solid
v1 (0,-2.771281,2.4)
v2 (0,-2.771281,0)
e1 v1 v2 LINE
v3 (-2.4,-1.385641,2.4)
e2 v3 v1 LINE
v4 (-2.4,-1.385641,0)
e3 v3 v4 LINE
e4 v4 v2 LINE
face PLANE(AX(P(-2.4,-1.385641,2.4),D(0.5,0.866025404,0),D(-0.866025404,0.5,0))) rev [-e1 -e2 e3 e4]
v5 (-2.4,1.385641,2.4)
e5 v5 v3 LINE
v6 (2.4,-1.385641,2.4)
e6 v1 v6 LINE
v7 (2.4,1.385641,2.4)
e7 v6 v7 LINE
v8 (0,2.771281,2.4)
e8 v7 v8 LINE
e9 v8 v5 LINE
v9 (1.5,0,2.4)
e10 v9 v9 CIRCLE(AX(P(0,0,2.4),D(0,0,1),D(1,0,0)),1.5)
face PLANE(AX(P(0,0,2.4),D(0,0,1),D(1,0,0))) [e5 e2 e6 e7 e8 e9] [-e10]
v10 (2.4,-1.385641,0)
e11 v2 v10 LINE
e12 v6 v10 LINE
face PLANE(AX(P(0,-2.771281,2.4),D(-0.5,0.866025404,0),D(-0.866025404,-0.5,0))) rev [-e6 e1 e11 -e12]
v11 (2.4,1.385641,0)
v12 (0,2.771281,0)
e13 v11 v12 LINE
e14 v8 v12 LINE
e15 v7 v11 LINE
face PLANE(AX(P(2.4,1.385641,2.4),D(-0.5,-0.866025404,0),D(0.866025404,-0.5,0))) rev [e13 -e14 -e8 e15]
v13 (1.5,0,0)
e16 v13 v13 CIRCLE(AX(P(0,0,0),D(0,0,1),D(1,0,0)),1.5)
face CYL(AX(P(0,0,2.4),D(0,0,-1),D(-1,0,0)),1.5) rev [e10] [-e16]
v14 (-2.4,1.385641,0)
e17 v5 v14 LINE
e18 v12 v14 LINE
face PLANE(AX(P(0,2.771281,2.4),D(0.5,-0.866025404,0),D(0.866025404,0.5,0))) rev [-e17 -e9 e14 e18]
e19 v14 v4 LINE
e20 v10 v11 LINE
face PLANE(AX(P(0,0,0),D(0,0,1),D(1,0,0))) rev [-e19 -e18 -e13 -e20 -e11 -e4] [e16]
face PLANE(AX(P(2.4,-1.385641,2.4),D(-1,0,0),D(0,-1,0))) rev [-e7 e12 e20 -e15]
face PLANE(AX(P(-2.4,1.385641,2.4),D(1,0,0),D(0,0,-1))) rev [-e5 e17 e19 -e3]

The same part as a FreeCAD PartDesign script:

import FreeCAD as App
import Part
import Sketcher
from FreeCAD import Vector
Q = App.Units.Quantity


def add_polygon(sketch, points):
    """Adds a closed chain of lines whose ends are joined by coincident constraints."""
    first, n = sketch.GeometryCount, len(points)
    for a, b in zip(points, points[1:] + points[:1]):
        sketch.addGeometry(Part.LineSegment(App.Vector(*a, 0), App.Vector(*b, 0)), False)
    for i in range(n):
        sketch.addConstraint(Sketcher.Constraint("Coincident", first + i, 2, first + (i + 1) % n, 1))

doc = App.newDocument("Part")
body = doc.addObject("PartDesign::Body", "Body")

# Sketch on XY plane
sketch1 = body.newObject("Sketcher::SketchObject", "Sketch")
sketch1.AttachmentSupport = (doc.getObject("XY_Plane"), [""])
sketch1.MapMode = "FlatFace"
add_polygon(sketch1, [(0, -2.8), (2.4, -1.4), (2.4, 1.4), (0, 2.8), (-2.4, 1.4), (-2.4, -1.4)])  # lines 0-5
sketch1.addGeometry(Part.Circle(Vector(0, 0, 0), Vector(0, 0, 1), 1.5), False)  # 6
sketch1.addConstraint([
    Sketcher.Constraint("Vertical", 1),
    Sketcher.Constraint("Vertical", 4),
    Sketcher.Constraint("Coincident", 6, 3, -1, 1),
    Sketcher.Constraint("Symmetric", 0, 2, 3, 2, -1, 1),
    Sketcher.Constraint("Symmetric", 2, 2, 5, 2, -1, 1),
    Sketcher.Constraint("PointOnObject", 2, 2, -2),
    Sketcher.Constraint("Parallel", 2, 5),
    Sketcher.Constraint("Horizontal", 1, 2, 3, 2),
    Sketcher.Constraint("Diameter", 6, Q("3 mm")),
    Sketcher.Constraint("Angle", 0, Q("30 deg")),
    Sketcher.Constraint("DistanceX", -1, 1, 0, 2, Q("2.4 mm")),
    Sketcher.Constraint("DistanceY", 1, 1, 1, 2, Q("2.771281 mm")),
])
pad1 = body.newObject("PartDesign::Pad", "Pad")
pad1.Profile = sketch1
pad1.Length = 2.4

doc.recompute()
